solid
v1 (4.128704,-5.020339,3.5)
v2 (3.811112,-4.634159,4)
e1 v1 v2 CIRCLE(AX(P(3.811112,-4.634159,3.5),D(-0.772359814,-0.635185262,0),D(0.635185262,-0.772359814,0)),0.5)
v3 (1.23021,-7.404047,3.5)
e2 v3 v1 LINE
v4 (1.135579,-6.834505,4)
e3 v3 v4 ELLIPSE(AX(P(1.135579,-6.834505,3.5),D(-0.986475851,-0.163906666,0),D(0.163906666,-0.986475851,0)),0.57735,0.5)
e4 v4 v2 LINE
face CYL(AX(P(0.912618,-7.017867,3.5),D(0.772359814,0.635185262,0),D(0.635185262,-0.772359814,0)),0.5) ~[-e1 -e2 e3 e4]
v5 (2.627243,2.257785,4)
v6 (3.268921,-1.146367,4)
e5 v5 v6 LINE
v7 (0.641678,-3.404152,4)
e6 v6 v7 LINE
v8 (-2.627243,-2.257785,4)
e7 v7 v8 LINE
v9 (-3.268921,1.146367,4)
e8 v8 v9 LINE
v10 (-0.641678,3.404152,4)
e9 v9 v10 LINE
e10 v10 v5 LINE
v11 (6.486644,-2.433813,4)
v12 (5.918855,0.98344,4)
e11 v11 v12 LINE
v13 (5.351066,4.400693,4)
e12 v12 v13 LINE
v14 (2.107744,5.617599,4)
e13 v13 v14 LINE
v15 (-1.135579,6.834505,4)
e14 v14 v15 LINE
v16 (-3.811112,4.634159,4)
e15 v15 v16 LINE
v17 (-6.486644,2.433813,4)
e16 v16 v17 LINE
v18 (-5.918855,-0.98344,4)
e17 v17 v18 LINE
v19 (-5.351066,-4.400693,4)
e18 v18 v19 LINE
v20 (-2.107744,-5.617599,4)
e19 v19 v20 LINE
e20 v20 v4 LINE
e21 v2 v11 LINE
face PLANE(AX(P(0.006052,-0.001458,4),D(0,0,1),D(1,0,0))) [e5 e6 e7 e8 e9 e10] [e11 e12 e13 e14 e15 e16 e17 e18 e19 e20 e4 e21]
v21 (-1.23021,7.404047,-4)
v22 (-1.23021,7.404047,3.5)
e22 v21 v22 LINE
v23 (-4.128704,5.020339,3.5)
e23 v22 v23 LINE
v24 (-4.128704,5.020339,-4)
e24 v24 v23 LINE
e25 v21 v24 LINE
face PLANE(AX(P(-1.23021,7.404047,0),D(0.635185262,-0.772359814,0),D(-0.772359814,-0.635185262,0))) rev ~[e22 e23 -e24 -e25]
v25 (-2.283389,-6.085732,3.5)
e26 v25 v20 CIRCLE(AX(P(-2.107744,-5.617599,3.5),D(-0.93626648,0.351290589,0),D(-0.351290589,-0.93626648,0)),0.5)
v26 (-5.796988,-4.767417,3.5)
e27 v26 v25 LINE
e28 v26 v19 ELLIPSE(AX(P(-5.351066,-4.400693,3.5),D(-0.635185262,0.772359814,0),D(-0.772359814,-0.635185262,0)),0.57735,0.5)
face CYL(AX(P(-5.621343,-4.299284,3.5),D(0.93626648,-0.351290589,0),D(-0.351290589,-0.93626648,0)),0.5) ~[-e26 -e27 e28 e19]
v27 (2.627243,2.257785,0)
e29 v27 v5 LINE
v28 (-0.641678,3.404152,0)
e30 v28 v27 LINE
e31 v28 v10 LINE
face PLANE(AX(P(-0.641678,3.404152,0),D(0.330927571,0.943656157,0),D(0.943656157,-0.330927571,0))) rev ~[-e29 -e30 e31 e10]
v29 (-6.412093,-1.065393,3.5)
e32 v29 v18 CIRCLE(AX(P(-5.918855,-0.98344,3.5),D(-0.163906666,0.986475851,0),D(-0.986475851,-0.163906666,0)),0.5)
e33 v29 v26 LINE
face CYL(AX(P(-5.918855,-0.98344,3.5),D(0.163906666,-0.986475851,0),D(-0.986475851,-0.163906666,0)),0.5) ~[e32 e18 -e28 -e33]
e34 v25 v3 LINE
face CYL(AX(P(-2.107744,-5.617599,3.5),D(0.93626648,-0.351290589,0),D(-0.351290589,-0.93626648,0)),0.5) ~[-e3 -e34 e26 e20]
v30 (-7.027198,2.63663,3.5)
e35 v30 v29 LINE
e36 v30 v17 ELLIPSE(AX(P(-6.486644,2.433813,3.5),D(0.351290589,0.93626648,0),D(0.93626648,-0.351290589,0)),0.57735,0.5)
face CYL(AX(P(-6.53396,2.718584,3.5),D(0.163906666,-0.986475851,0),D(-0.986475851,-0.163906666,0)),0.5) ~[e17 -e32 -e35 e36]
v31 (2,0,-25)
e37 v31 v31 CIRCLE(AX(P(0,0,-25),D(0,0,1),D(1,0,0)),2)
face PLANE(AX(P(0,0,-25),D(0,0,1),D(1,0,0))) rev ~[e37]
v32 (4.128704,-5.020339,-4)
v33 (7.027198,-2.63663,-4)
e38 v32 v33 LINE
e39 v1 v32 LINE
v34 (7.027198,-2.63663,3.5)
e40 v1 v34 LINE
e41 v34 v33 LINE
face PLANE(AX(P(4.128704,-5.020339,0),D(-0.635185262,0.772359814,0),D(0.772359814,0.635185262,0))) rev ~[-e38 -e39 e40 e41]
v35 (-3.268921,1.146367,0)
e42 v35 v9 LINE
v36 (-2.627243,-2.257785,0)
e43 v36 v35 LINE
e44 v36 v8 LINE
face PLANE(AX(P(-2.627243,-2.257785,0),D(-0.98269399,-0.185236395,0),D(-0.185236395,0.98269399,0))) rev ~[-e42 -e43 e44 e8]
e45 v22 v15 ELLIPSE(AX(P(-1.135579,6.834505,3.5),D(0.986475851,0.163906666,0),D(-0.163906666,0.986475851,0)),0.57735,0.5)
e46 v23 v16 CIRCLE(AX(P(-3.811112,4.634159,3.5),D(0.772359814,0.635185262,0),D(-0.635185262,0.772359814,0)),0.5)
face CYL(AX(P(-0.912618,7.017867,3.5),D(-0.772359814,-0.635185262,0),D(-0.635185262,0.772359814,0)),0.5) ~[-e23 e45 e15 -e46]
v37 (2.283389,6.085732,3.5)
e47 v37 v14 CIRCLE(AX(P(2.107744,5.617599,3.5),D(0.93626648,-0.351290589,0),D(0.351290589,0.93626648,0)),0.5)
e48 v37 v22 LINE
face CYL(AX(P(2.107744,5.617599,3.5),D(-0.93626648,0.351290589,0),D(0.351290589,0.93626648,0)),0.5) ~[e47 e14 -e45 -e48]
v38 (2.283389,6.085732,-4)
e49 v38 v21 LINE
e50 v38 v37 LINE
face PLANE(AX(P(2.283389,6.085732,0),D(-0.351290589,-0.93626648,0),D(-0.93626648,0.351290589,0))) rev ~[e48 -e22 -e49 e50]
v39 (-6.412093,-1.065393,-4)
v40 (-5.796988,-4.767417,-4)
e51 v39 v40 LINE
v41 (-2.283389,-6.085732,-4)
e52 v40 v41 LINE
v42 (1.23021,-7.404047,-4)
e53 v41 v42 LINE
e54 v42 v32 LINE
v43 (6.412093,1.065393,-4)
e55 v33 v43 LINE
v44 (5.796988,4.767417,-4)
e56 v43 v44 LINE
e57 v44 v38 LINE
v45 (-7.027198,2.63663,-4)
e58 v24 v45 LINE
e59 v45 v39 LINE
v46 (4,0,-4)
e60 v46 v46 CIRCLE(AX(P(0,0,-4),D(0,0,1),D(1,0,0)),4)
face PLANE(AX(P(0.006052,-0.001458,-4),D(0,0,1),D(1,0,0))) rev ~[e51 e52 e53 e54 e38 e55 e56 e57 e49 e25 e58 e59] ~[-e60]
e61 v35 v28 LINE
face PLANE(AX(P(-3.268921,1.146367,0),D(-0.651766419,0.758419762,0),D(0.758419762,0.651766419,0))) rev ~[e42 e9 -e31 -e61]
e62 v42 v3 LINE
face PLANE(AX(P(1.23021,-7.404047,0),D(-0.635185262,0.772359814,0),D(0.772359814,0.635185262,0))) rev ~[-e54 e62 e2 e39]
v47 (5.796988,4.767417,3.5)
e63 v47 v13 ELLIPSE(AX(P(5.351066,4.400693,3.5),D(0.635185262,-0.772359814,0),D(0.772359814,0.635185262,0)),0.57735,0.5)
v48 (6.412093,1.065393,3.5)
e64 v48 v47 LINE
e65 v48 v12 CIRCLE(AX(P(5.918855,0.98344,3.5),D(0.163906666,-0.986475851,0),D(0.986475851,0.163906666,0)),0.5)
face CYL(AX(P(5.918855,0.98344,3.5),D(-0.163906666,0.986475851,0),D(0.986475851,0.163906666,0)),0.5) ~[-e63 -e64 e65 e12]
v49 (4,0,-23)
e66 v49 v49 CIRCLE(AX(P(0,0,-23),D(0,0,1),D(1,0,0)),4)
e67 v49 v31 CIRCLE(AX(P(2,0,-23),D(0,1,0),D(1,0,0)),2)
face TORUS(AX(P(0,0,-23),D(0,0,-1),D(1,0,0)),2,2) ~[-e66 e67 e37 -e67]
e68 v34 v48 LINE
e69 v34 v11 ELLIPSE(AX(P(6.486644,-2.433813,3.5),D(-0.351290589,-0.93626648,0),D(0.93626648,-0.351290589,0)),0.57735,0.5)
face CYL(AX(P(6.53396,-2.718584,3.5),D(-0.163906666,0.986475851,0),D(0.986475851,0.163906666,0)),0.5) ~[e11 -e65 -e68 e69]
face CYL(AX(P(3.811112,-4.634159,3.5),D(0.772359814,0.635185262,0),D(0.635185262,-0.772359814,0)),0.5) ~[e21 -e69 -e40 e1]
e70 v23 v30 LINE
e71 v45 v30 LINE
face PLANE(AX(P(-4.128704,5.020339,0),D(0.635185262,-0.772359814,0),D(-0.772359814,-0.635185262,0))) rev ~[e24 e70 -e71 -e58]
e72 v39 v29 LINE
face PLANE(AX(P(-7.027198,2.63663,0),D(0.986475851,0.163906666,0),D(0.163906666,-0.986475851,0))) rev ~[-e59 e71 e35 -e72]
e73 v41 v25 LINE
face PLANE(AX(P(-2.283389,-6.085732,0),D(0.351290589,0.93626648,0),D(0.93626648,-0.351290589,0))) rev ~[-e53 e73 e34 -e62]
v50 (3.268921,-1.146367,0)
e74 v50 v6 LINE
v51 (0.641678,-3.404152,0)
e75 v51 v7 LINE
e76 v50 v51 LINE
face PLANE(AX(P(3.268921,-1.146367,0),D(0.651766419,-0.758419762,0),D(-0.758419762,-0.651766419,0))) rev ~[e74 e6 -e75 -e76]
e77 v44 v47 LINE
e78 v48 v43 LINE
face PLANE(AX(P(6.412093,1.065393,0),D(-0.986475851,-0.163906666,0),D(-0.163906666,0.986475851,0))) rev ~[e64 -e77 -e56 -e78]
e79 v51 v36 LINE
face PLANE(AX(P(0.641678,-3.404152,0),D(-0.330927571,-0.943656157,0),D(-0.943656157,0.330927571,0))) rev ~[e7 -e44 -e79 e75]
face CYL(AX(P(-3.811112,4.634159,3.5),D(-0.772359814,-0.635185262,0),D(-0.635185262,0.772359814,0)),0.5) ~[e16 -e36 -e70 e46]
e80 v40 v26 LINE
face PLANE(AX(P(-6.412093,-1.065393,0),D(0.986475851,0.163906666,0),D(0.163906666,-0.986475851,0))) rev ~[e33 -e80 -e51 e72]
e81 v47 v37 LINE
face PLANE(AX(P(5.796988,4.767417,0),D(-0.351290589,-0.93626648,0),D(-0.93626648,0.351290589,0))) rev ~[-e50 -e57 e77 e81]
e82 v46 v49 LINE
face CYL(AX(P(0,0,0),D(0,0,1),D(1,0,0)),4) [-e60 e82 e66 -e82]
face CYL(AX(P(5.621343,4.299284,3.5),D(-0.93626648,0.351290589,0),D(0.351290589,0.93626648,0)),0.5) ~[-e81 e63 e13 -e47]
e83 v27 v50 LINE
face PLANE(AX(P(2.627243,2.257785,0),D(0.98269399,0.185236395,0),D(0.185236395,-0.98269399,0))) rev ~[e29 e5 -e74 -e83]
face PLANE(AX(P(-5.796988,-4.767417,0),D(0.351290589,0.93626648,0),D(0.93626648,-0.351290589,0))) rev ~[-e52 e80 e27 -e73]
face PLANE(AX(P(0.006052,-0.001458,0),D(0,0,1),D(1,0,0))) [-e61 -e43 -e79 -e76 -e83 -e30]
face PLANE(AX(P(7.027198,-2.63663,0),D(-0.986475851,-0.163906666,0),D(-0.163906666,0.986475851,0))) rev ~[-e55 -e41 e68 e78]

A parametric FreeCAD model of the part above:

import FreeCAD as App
import Part
import Sketcher

V = App.Vector


def edges_at(feature, points):
    """Names of the edges that pass closest to the given points."""
    edges = feature.Shape.Edges
    near = lambda p: min(range(len(edges)), key=lambda i: edges[i].distToShape(Part.Vertex(*p))[0])
    return sorted({f"Edge{near(p) + 1}" for p in points})


def add_polygon(sketch, points):
    """Adds a closed chain of lines whose ends are joined by coincident constraints."""
    first, n = sketch.GeometryCount, len(points)
    for a, b in zip(points, points[1:] + points[:1]):
        sketch.addGeometry(Part.LineSegment(App.Vector(*a, 0), App.Vector(*b, 0)), False)
    for i in range(n):
        sketch.addConstraint(Sketcher.Constraint("Coincident", first + i, 2, first + (i + 1) % n, 1))

doc = App.newDocument("Part")
body = doc.addObject("PartDesign::Body", "Body")

# Sketch on XY plane
sketch1 = body.newObject("Sketcher::SketchObject", "Sketch")
sketch1.AttachmentSupport = (doc.getObject("XY_Plane"), [""])
sketch1.MapMode = "FlatFace"
add_polygon(sketch1, [(4.1, -5), (7, -2.6), (6.4, 1.1), (5.8, 4.8), (2.3, 6.1), (-1.2, 7.4), (-4.1, 5), (-7, 2.6), (-6.4, -1.1), (-5.8, -4.8), (-2.3, -6.1), (1.2, -7.4)])  # lines 0-11
sketch1.addConstraint([
    Sketcher.Constraint("Symmetric", 0, 2, 6, 2, -1, 1),
    Sketcher.Constraint("Symmetric", 1, 2, 7, 2, -1, 1),
    Sketcher.Constraint("Symmetric", 2, 2, 8, 2, -1, 1),
    Sketcher.Constraint("Symmetric", 3, 2, 9, 2, -1, 1),
    Sketcher.Constraint("Symmetric", 4, 2, 10, 2, -1, 1),
    Sketcher.Constraint("Symmetric", 5, 2, 11, 2, -1, 1),
    Sketcher.Constraint("Parallel", 1, 2),
    Sketcher.Constraint("Parallel", 3, 4),
    Sketcher.Constraint("Parallel", 0, 5),
    Sketcher.Constraint("Equal", 0, 1),
    Sketcher.Constraint("Equal", 1, 2),
    Sketcher.Constraint("Equal", 2, 3),
    Sketcher.Constraint("Equal", 3, 4),
    Sketcher.Constraint("Equal", 4, 5),
    Sketcher.Constraint("DistanceX", -1, 1, 0, 2, 7.027198),
    Sketcher.Constraint("DistanceX", 3, 2, 2, 2, 3.513599),
    Sketcher.Constraint("DistanceY", 6, 2, 3, 2, 3.449102),
    Sketcher.Constraint("DistanceY", 0, 2, -1, 1, 2.63663),
])
pad1 = body.newObject("PartDesign::Pad", "Pad")
pad1.Profile = sketch1
pad1.Length = 4
pad1.Reversed = True

# Sketch on XY plane
sketch2 = body.newObject("Sketcher::SketchObject", "Sketch001")
sketch2.AttachmentSupport = (doc.getObject("XY_Plane"), [""])
sketch2.MapMode = "FlatFace"
add_polygon(sketch2, [(6.4, 1.1), (5.8, 4.8), (2.3, 6.1), (-1.2, 7.4), (-4.1, 5), (-7, 2.6), (-6.4, -1.1), (-5.8, -4.8), (-2.3, -6.1), (1.2, -7.4), (4.1, -5), (7, -2.6)])  # lines 0-11
add_polygon(sketch2, [(0.6, -3.4), (-2.6, -2.3), (-3.3, 1.1), (-0.6, 3.4), (2.6, 2.3), (3.3, -1.1)])  # lines 12-17
sketch2.addConstraint([
    Sketcher.Constraint("Symmetric", 0, 2, 6, 2, -1, 1),
    Sketcher.Constraint("Symmetric", 1, 2, 7, 2, -1, 1),
    Sketcher.Constraint("Symmetric", 2, 2, 8, 2, -1, 1),
    Sketcher.Constraint("Symmetric", 3, 2, 9, 2, -1, 1),
    Sketcher.Constraint("Symmetric", 4, 2, 10, 2, -1, 1),
    Sketcher.Constraint("Symmetric", 5, 2, 11, 2, -1, 1),
    Sketcher.Constraint("Symmetric", 12, 2, 15, 2, -1, 1),
    Sketcher.Constraint("Symmetric", 13, 2, 16, 2, -1, 1),
    Sketcher.Constraint("Symmetric", 14, 2, 17, 2, -1, 1),
    Sketcher.Constraint("Parallel", 1, 2),
    Sketcher.Constraint("Parallel", 3, 4),
    Sketcher.Constraint("Parallel", 0, 5),
    Sketcher.Constraint("Equal", 0, 1),
    Sketcher.Constraint("Equal", 1, 2),
    Sketcher.Constraint("Equal", 2, 3),
    Sketcher.Constraint("Equal", 3, 4),
    Sketcher.Constraint("Equal", 4, 5),
    Sketcher.Constraint("Equal", 12, 13),
    Sketcher.Constraint("Equal", 13, 14),
    Sketcher.Constraint("Distance", 12, 3.464102),
    Sketcher.Constraint("DistanceX", 4, 2, -1, 1, 7.027198),
    Sketcher.Constraint("DistanceX", 1, 2, 0, 2, 3.513599),
    Sketcher.Constraint("DistanceY", 4, 2, 1, 2, 3.449102),
    Sketcher.Constraint("DistanceX", 14, 2, 16, 2, 3.910599),
    Sketcher.Constraint("DistanceX", -1, 1, 1, 2, 2.283389),
    Sketcher.Constraint("DistanceX", 13, 2, -1, 1, 3.268921),
    Sketcher.Constraint("DistanceY", -1, 1, 14, 2, 3.404152),
])
pad2 = body.newObject("PartDesign::Pad", "Pad001")
pad2.Profile = sketch2
pad2.Length = 4

# Sketch on XY plane
sketch3 = body.newObject("Sketcher::SketchObject", "Sketch002")
sketch3.AttachmentSupport = (doc.getObject("XY_Plane"), [""])
sketch3.MapMode = "FlatFace"
sketch3.addGeometry(Part.Circle(V(0, 0, 0), V(0, 0, 1), 4), False)
sketch3.addConstraint([
    Sketcher.Constraint("Coincident", 0, 3, -1, 1),
    Sketcher.Constraint("Diameter", 0, 8.0),
])
pad3 = body.newObject("PartDesign::Pad", "Pad002")
pad3.Profile = sketch3
pad3.Length = 25
pad3.Reversed = True
doc.recompute()

fillet = body.newObject("PartDesign::Fillet", "Fillet")
fillet.Base = (pad3, edges_at(pad3, [(-4, 0, -25)]))
fillet.Radius = 2
doc.recompute()

fillet2 = body.newObject("PartDesign::Fillet", "Fillet001")
fillet2.Base = (fillet, edges_at(fillet, [
    (-6.72, 0.786, 4),
    (-4.04, -5.427, 4),
    (2.679, -6.212, 4),
    (6.72, -0.786, 4),
    (4.04, 5.427, 4),
    (-2.679, 6.212, 4),
]))
fillet2.Radius = 0.5

doc.recompute()
